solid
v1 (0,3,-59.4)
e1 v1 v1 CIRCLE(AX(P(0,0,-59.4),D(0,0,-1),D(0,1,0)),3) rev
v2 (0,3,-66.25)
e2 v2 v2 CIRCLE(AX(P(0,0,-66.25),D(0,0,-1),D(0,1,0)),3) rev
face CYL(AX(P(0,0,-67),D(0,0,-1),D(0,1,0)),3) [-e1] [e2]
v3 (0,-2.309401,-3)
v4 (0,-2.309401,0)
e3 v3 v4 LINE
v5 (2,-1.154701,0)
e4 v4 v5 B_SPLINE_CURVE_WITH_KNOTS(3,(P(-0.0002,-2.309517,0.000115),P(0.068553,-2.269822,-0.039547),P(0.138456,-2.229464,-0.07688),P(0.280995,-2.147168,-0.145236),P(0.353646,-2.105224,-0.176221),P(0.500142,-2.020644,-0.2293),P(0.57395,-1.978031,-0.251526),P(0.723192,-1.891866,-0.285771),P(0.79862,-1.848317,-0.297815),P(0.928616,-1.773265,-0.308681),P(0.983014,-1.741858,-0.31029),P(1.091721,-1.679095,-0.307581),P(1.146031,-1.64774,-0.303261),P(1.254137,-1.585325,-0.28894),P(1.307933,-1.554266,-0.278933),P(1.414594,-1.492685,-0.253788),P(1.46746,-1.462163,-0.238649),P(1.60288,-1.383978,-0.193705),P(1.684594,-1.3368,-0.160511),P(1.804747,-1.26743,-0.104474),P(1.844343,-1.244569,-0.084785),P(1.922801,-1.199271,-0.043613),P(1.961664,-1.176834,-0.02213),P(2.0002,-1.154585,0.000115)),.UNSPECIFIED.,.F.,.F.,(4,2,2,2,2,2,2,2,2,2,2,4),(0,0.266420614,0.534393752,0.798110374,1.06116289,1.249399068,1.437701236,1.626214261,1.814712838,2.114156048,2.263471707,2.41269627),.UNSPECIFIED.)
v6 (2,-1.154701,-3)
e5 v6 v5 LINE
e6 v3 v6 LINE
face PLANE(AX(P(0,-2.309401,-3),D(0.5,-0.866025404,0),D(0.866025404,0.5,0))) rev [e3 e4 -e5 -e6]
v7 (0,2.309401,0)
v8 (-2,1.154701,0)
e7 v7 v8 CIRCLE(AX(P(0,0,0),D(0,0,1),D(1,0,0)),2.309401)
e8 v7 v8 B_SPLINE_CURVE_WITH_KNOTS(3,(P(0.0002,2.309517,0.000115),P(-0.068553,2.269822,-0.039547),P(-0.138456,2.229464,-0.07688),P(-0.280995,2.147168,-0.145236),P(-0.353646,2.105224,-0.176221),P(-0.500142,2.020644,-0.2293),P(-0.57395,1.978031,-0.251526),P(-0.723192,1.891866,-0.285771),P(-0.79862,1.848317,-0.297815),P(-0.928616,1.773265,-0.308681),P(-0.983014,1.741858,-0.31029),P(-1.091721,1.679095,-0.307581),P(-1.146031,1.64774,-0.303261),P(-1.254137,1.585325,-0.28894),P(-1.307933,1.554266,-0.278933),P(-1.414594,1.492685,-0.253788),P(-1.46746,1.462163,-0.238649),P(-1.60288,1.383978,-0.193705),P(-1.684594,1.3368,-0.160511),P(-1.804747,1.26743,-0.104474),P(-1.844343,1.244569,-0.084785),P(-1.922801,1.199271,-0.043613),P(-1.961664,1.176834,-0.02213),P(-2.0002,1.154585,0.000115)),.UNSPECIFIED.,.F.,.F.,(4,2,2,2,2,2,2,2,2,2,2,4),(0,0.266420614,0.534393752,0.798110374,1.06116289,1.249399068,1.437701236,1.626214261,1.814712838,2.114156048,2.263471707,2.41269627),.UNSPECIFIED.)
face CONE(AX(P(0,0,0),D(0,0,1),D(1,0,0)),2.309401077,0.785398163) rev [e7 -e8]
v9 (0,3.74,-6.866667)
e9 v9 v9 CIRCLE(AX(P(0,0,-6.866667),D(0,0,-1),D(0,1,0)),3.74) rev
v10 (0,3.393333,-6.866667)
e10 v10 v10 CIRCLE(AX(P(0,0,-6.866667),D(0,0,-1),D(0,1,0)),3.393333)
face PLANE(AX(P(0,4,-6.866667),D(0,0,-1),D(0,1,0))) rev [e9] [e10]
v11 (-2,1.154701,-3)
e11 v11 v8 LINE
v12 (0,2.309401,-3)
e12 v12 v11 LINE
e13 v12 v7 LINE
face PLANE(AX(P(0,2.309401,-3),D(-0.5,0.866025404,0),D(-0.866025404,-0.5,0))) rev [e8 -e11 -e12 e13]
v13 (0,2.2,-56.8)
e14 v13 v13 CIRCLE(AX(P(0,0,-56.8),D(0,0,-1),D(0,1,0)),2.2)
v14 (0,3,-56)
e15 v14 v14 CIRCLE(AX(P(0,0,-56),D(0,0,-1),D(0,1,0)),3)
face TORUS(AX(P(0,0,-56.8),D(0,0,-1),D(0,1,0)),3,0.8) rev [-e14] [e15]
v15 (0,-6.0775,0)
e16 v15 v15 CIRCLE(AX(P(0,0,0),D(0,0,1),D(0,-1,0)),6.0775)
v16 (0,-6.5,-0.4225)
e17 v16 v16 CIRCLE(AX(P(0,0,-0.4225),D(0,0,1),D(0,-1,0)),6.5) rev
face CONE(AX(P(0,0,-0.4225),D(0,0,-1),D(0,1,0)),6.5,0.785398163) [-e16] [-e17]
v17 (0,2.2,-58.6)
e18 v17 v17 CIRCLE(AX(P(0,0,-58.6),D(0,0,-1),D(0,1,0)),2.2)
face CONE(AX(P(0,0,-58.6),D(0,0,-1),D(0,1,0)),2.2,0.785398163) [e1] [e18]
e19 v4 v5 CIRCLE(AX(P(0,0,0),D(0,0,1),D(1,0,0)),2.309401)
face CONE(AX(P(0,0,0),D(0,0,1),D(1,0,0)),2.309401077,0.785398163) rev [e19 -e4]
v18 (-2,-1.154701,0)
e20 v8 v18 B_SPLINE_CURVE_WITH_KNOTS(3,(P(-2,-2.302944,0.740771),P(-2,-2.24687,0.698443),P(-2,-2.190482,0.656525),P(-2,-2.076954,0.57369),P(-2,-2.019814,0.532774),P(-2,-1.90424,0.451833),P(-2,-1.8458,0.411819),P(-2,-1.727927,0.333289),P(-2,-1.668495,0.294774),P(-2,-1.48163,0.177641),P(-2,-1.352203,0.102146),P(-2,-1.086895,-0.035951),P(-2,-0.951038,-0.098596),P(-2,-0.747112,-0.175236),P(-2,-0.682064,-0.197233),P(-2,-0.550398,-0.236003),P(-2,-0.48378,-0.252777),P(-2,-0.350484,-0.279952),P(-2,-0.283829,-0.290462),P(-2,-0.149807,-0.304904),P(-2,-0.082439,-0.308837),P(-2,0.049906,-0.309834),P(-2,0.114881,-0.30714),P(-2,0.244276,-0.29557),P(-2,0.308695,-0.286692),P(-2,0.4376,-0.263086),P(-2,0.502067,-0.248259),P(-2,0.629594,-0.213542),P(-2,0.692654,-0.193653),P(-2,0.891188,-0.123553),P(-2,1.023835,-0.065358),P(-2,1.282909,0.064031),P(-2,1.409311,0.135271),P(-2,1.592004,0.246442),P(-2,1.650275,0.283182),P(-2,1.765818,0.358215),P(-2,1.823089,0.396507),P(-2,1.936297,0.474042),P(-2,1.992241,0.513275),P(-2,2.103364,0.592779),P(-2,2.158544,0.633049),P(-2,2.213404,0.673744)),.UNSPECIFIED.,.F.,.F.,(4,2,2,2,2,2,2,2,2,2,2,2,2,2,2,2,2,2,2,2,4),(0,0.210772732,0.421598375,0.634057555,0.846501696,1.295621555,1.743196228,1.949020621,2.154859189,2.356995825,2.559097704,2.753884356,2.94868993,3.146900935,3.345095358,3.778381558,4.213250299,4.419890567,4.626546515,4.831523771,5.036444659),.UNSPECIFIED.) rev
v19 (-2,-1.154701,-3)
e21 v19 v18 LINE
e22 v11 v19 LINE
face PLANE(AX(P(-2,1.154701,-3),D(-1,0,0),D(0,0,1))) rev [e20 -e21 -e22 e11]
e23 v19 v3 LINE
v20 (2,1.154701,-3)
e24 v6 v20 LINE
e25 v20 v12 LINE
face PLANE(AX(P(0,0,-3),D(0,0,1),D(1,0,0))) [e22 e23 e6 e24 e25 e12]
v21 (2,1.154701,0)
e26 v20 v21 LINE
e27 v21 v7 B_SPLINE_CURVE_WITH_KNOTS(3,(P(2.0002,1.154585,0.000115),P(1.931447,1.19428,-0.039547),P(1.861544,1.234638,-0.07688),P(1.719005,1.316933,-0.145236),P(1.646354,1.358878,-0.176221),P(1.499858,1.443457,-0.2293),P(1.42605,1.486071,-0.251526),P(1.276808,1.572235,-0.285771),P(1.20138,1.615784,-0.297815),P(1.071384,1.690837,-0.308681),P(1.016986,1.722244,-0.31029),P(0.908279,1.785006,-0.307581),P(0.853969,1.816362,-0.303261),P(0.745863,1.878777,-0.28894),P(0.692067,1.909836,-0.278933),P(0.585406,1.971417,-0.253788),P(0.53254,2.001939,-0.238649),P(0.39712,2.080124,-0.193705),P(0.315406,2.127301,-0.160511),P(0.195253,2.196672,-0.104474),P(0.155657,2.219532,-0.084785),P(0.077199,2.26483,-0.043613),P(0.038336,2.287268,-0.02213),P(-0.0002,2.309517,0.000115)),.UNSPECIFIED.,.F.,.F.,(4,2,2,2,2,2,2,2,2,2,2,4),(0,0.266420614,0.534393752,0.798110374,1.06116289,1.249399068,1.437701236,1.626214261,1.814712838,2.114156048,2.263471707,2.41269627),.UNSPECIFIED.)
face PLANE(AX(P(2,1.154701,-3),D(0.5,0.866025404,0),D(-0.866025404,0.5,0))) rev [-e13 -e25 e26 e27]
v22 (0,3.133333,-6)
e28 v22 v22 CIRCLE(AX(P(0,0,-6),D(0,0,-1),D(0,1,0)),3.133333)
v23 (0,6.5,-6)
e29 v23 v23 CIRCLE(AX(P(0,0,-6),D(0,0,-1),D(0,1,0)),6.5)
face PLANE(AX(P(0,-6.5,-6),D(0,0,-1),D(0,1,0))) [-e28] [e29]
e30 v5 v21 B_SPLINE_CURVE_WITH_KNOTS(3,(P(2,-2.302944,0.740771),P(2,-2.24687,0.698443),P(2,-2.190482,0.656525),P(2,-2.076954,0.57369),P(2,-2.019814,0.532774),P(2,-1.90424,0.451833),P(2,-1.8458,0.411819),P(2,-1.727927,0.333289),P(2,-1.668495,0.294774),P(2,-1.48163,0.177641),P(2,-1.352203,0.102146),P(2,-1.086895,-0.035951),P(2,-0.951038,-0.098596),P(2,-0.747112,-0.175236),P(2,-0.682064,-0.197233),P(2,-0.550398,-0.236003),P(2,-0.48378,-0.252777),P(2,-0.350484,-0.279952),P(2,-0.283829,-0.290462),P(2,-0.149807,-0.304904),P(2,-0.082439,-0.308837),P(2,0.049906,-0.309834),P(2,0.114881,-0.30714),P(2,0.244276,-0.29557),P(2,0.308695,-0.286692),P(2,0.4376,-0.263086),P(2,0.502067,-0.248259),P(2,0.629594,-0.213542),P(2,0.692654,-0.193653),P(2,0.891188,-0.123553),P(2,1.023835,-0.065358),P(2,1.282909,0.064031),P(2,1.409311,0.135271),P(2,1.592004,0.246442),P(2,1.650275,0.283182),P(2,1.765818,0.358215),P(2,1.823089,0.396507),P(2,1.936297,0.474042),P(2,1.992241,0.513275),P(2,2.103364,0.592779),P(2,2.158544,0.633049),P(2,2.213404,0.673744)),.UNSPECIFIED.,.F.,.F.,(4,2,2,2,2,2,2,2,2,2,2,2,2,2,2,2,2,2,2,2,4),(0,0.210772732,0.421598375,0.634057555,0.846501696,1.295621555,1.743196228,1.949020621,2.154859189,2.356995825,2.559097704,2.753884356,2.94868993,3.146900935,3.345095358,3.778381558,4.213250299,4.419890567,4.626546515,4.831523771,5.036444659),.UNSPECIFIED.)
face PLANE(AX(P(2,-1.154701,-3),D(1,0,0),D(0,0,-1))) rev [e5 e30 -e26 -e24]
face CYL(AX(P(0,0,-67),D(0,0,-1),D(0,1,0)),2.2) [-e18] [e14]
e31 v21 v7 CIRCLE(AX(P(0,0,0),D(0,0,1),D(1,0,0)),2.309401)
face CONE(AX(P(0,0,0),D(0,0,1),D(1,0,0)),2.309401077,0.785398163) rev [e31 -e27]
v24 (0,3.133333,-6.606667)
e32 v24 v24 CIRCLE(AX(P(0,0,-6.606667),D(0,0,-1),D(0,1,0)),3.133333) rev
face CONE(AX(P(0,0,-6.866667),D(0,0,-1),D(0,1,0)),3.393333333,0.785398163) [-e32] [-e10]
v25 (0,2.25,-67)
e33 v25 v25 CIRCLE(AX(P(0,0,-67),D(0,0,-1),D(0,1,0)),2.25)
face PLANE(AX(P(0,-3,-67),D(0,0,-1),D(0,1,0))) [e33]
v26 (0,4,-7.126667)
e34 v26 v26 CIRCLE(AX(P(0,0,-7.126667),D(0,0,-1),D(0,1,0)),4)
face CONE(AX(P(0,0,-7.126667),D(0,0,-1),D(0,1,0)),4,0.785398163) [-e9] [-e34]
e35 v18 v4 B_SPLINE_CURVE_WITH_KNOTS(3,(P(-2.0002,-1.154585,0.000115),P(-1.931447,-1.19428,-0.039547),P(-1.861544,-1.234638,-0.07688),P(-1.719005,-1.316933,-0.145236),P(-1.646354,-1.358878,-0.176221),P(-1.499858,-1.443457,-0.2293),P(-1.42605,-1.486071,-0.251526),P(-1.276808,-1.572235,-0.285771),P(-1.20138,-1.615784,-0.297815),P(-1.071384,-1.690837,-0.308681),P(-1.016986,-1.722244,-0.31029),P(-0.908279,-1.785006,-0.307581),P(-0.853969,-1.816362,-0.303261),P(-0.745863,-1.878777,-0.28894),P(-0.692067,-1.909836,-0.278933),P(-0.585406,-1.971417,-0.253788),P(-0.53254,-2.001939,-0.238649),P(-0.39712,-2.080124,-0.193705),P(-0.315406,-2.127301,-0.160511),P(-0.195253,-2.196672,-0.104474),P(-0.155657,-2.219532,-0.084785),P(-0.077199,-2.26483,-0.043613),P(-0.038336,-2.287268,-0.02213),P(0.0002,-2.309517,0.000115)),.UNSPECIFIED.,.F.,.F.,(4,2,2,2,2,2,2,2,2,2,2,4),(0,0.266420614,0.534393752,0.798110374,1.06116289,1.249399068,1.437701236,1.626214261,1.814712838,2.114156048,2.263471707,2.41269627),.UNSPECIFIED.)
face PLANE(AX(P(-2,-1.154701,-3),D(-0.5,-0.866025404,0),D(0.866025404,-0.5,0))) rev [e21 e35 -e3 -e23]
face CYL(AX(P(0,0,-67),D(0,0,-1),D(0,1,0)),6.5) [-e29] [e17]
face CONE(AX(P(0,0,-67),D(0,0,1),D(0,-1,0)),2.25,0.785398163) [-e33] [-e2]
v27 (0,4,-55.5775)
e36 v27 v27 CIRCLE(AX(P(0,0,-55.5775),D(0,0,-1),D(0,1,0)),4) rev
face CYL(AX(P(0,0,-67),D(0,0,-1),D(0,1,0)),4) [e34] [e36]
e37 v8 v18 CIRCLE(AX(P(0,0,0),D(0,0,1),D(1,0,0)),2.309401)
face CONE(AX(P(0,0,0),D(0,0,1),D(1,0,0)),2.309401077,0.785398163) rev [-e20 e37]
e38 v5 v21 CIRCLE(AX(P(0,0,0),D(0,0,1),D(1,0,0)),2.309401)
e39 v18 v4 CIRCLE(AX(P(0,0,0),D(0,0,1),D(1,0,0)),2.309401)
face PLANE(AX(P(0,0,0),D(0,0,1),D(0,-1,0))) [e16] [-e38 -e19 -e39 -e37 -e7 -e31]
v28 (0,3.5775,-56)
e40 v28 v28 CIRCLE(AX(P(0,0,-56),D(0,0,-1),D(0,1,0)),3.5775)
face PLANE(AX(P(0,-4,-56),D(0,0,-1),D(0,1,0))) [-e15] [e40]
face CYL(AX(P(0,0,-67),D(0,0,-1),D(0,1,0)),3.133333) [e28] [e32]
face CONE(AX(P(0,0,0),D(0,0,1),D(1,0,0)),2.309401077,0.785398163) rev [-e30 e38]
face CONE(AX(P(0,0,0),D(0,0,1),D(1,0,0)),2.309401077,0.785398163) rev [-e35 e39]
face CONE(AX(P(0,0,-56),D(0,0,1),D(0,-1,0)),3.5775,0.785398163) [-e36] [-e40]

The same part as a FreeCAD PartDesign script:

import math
import FreeCAD as App
import Part
import Sketcher

V = App.Vector
Q = App.Units.Quantity


def edges_at(feature, points):
    """Names of the edges that pass closest to the given points."""
    edges = feature.Shape.Edges
    near = lambda p: min(range(len(edges)), key=lambda i: edges[i].distToShape(Part.Vertex(*p))[0])
    return sorted({f"Edge{near(p) + 1}" for p in points})

doc = App.newDocument("Part")
body = doc.addObject("PartDesign::Body", "Body")

sketch1 = body.newObject("Sketcher::SketchObject", "Sketch")
sketch1.AttachmentSupport = (doc.getObject("YZ_Plane"), [""])
sketch1.MapMode = "FlatFace"
sketch1.addGeometry([
    Part.LineSegment(V(6.5, -6, 0), V(6.5, 0, 0)),
    Part.LineSegment(V(6.5, 0, 0), V(0, 0, 0)),
    Part.LineSegment(V(0, 0, 0), V(0, -67, 0)),
    Part.LineSegment(V(0, -67, 0), V(3, -67, 0)),
    Part.LineSegment(V(3, -67, 0), V(3, -56, 0)),
    Part.LineSegment(V(3, -56, 0), V(4, -56, 0)),
    Part.LineSegment(V(4, -56, 0), V(4, -6, 0)),
    Part.LineSegment(V(4, -6, 0), V(6.5, -6, 0)),
], False)
sketch1.addConstraint([
    Sketcher.Constraint("Coincident", 0, 2, 1, 1),
    Sketcher.Constraint("Coincident", 1, 2, 2, 1),
    Sketcher.Constraint("Coincident", 2, 2, 3, 1),
    Sketcher.Constraint("Coincident", 3, 2, 4, 1),
    Sketcher.Constraint("Coincident", 4, 2, 5, 1),
    Sketcher.Constraint("Coincident", 5, 2, 6, 1),
    Sketcher.Constraint("Coincident", 6, 2, 7, 1),
    Sketcher.Constraint("Coincident", 7, 2, 0, 1),
    Sketcher.Constraint("Vertical", 0),
    Sketcher.Constraint("Horizontal", 1),
    Sketcher.Constraint("Vertical", 2),
    Sketcher.Constraint("Horizontal", 3),
    Sketcher.Constraint("Vertical", 4),
    Sketcher.Constraint("Horizontal", 5),
    Sketcher.Constraint("Vertical", 6),
    Sketcher.Constraint("Horizontal", 7),
    Sketcher.Constraint("Coincident", 1, 2, -1, 1),
    Sketcher.Constraint("DistanceX", 3, 1, 3, 2, 3.0),
    Sketcher.Constraint("DistanceX", 5, 1, 5, 2, 1.0),
    Sketcher.Constraint("DistanceY", 0, 1, 0, 2, 6.0),
    Sketcher.Constraint("DistanceY", 2, 2, 2, 1, 67.0),
    Sketcher.Constraint("DistanceY", 4, 1, 4, 2, 11.0),
    Sketcher.Constraint("DistanceX", 1, 2, 1, 1, 6.5),
])
revolution = body.newObject("PartDesign::Revolution", "Revolution")
revolution.Profile = sketch1
revolution.ReferenceAxis = (sketch1, ["V_Axis"])
revolution.Angle = 360

sketch2 = body.newObject("Sketcher::SketchObject", "Sketch001")
sketch2.AttachmentSupport = (doc.getObject("YZ_Plane"), [""])
sketch2.MapMode = "FlatFace"
sketch2.addGeometry([
    Part.LineSegment(V(4, -6, 0), V(3.1, -6, 0)),
    Part.LineSegment(V(3.1, -6, 0), V(3.1, -6.9, 0)),
    Part.LineSegment(V(3.1, -6.9, 0), V(4, -6.9, 0)),
    Part.LineSegment(V(4, -6.9, 0), V(4, -6, 0)),
], False)
sketch2.addConstraint([
    Sketcher.Constraint("Coincident", 0, 2, 1, 1),
    Sketcher.Constraint("Coincident", 1, 2, 2, 1),
    Sketcher.Constraint("Coincident", 2, 2, 3, 1),
    Sketcher.Constraint("Coincident", 3, 2, 0, 1),
    Sketcher.Constraint("Horizontal", 0),
    Sketcher.Constraint("Vertical", 1),
    Sketcher.Constraint("Horizontal", 2),
    Sketcher.Constraint("Vertical", 3),
    Sketcher.Constraint("Equal", 2, 1),
    Sketcher.Constraint("DistanceY", 0, 2, -1, 1, 6.0),
    Sketcher.Constraint("DistanceX", -1, 1, 2, 2, 4.0),
    Sketcher.Constraint("DistanceX", 0, 2, 0, 1, 0.866667),
])
groove = body.newObject("PartDesign::Groove", "Groove")
groove.Profile = sketch2
groove.ReferenceAxis = (sketch2, ["V_Axis"])
groove.Angle = 360
doc.recompute()

chamfer = body.newObject("PartDesign::Chamfer", "Chamfer")
chamfer.Base = (groove, edges_at(groove, [(0, -3.133, -6.867), (0, -4, -6.867)]))
chamfer.Size = 0.26

sketch3 = body.newObject("Sketcher::SketchObject", "Sketch002")
sketch3.AttachmentSupport = (doc.getObject("YZ_Plane"), [""])
sketch3.MapMode = "FlatFace"
sketch3.addGeometry([
    Part.LineSegment(V(4, -60.4, 0), V(4, -56, 0)),
    Part.LineSegment(V(4, -56, 0), V(3, -56, 0)),
    Part.ArcOfCircle(Part.Circle(V(3, -56.8, 0), V(0, 0, 1), 0.8), math.radians(90), math.radians(180)),
    Part.LineSegment(V(2.2, -56.8, 0), V(2.2, -58.6, 0)),
    Part.LineSegment(V(2.2, -58.6, 0), V(4, -60.4, 0)),
], False)
sketch3.addConstraint([
    Sketcher.Constraint("Coincident", 0, 2, 1, 1),
    Sketcher.Constraint("Tangent", 1, 2, 2, 1),
    Sketcher.Constraint("Tangent", 2, 2, 3, 1),
    Sketcher.Constraint("Coincident", 3, 2, 4, 1),
    Sketcher.Constraint("Coincident", 4, 2, 0, 1),
    Sketcher.Constraint("Vertical", 0),
    Sketcher.Constraint("Horizontal", 1),
    Sketcher.Constraint("Vertical", 3),
    Sketcher.Constraint("Radius", 2, 0.8),
    Sketcher.Constraint("DistanceX", 1, 2, 1, 1, 1.0),
    Sketcher.Constraint("Angle", 4, Q("-45 deg")),
    Sketcher.Constraint("DistanceY", 0, 1, 0, 2, 4.4),
    Sketcher.Constraint("DistanceX", -1, 1, 2, 3, 3.0),
    Sketcher.Constraint("DistanceY", 0, 2, -1, 1, 56.0),
])
groove2 = body.newObject("PartDesign::Groove", "Groove001")
groove2.Profile = sketch3
groove2.ReferenceAxis = (sketch3, ["V_Axis"])
groove2.Angle = 360
doc.recompute()

chamfer2 = body.newObject("PartDesign::Chamfer", "Chamfer001")
chamfer2.Base = (groove2, edges_at(groove2, [(0, -3, -67)]))
chamfer2.Size = 0.75
doc.recompute()

chamfer3 = body.newObject("PartDesign::Chamfer", "Chamfer002")
chamfer3.Base = (chamfer2, edges_at(chamfer2, [(0, -4, -56), (0, -6.5, 0)]))
chamfer3.Size = 0.4225

sketch4 = body.newObject("Sketcher::SketchObject", "Sketch003")
sketch4.AttachmentSupport = (doc.getObject("XY_Plane"), [""])
sketch4.MapMode = "FlatFace"
sketch4.addGeometry([
    Part.LineSegment(V(2, 1.2, 0), V(0, 2.3, 0)),
    Part.LineSegment(V(0, 2.3, 0), V(-2, 1.2, 0)),
    Part.LineSegment(V(-2, 1.2, 0), V(-2, -1.2, 0)),
    Part.LineSegment(V(-2, -1.2, 0), V(0, -2.3, 0)),
    Part.LineSegment(V(0, -2.3, 0), V(2, -1.2, 0)),
    Part.LineSegment(V(2, -1.2, 0), V(2, 1.2, 0)),
], False)
sketch4.addConstraint([
    Sketcher.Constraint("Coincident", 0, 2, 1, 1),
    Sketcher.Constraint("Coincident", 1, 2, 2, 1),
    Sketcher.Constraint("Coincident", 2, 2, 3, 1),
    Sketcher.Constraint("Coincident", 3, 2, 4, 1),
    Sketcher.Constraint("Coincident", 4, 2, 5, 1),
    Sketcher.Constraint("Coincident", 5, 2, 0, 1),
    Sketcher.Constraint("Vertical", 2),
    Sketcher.Constraint("Vertical", 5),
    Sketcher.Constraint("Symmetric", 0, 2, 3, 2, -1, 1),
    Sketcher.Constraint("Symmetric", 1, 2, 4, 2, -1, 1),
    Sketcher.Constraint("PointOnObject", 0, 2, -2),
    Sketcher.Constraint("Parallel", 0, 3),
    Sketcher.Constraint("Horizontal", 2, 2, 4, 2),
    Sketcher.Constraint("Angle", 0, Q("150 deg")),
    Sketcher.Constraint("DistanceX", 1, 2, -1, 1, 2.0),
    Sketcher.Constraint("DistanceY", 2, 2, 2, 1, 2.309401),
])
pocket1 = body.newObject("PartDesign::Pocket", "Pocket")
pocket1.Profile = sketch4
pocket1.Length = 3

sketch5 = body.newObject("Sketcher::SketchObject", "Sketch004")
sketch5.AttachmentSupport = (doc.getObject("YZ_Plane"), [""])
sketch5.MapMode = "FlatFace"
sketch5.addGeometry([
    Part.LineSegment(V(0, 0, 0), V(-2.3, 0, 0)),
    Part.LineSegment(V(-2.3, 0, 0), V(0, -2.3, 0)),
    Part.LineSegment(V(0, -2.3, 0), V(0, 0, 0)),
], False)
sketch5.addConstraint([
    Sketcher.Constraint("Coincident", 0, 2, 1, 1),
    Sketcher.Constraint("Coincident", 1, 2, 2, 1),
    Sketcher.Constraint("Coincident", 2, 2, 0, 1),
    Sketcher.Constraint("Horizontal", 0),
    Sketcher.Constraint("Vertical", 2),
    Sketcher.Constraint("Coincident", 2, 2, -1, 1),
    Sketcher.Constraint("Equal", 0, 2),
    Sketcher.Constraint("DistanceX", 0, 2, 0, 1, 2.309401),
])
groove3 = body.newObject("PartDesign::Groove", "Groove002")
groove3.Profile = sketch5
groove3.ReferenceAxis = (sketch5, ["V_Axis"])
groove3.Angle = 360

doc.recompute()
